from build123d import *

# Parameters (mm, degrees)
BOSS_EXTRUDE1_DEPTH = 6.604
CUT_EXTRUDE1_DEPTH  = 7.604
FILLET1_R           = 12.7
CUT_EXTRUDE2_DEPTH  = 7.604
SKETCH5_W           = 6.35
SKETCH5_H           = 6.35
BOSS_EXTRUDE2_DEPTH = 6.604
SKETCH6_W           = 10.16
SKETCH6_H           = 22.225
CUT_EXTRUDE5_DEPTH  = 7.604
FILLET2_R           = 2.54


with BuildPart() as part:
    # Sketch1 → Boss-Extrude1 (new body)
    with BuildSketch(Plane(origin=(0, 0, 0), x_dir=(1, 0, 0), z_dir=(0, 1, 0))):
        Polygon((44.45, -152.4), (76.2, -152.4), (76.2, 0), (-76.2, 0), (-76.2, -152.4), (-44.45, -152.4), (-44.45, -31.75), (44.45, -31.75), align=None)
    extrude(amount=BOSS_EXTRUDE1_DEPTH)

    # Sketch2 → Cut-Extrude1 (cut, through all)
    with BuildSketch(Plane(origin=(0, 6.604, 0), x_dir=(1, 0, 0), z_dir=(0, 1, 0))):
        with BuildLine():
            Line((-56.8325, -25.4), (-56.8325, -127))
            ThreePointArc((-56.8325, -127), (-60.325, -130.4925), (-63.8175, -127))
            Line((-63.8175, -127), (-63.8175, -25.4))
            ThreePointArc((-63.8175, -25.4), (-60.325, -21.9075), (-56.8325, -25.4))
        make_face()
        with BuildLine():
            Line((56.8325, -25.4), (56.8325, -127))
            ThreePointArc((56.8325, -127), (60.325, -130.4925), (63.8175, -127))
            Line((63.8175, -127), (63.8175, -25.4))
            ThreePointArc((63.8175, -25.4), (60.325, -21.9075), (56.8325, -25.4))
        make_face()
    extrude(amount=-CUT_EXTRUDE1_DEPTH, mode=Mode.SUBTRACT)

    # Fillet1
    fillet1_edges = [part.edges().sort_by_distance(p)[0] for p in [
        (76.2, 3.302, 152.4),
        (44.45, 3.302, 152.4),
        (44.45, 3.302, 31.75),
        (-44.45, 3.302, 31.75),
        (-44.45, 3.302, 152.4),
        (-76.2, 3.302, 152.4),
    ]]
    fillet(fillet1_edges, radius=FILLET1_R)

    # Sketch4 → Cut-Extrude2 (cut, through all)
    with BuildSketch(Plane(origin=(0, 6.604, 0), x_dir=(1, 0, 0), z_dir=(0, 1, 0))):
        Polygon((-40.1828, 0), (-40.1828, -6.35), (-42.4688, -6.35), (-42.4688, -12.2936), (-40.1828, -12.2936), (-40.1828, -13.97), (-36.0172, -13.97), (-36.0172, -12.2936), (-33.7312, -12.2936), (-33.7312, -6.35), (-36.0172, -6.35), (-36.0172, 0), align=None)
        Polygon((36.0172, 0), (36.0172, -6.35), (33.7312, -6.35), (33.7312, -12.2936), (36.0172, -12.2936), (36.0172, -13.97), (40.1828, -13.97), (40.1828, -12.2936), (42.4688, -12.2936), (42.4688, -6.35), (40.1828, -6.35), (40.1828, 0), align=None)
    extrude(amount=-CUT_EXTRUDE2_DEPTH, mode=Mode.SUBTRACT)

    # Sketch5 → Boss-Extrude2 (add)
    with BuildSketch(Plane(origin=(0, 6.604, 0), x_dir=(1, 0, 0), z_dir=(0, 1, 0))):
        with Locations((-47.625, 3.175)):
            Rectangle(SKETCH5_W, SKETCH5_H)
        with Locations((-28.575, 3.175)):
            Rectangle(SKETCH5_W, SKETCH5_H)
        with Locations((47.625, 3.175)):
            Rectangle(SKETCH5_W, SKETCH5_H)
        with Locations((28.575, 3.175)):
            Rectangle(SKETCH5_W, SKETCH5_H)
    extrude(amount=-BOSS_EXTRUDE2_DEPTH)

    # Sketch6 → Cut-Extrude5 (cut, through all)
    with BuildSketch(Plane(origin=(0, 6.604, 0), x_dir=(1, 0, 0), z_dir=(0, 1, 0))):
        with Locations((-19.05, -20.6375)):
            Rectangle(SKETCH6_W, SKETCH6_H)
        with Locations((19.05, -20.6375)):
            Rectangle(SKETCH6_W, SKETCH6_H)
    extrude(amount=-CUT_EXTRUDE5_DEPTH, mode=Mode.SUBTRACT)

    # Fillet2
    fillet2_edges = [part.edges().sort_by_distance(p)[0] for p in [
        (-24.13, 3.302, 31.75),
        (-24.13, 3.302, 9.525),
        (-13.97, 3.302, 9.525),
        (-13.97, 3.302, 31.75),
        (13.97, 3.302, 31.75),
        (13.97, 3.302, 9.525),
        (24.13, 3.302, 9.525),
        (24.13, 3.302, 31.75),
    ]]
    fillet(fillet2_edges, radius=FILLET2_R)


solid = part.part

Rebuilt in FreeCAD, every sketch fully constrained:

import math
import FreeCAD as App
import Part
import Sketcher

V = App.Vector
Q = App.Units.Quantity


def edges_at(feature, points):
    """Names of the edges that pass closest to the given points."""
    edges = feature.Shape.Edges
    near = lambda p: min(range(len(edges)), key=lambda i: edges[i].distToShape(Part.Vertex(*p))[0])
    return sorted({f"Edge{near(p) + 1}" for p in points})

doc = App.newDocument("Part")
body = doc.addObject("PartDesign::Body", "Body")

# Sketch on XZ plane
sketch1 = doc.addObject("Sketcher::SketchObject", "Sketch")
body.addObject(sketch1)
sketch1.AttachmentSupport = (doc.XZ_Plane, [""])
sketch1.MapMode = "FlatFace"
sketch1.addGeometry([
    Part.LineSegment(V(44, 152, 0), V(76, 152, 0)),  # 0
    Part.LineSegment(V(76, 152, 0), V(76, 0, 0)),  # 1
    Part.LineSegment(V(76, 0, 0), V(-76, 0, 0)),  # 2
    Part.LineSegment(V(-76, 0, 0), V(-76, 152, 0)),  # 3
    Part.LineSegment(V(-76, 152, 0), V(-44, 152, 0)),  # 4
    Part.LineSegment(V(-44, 152, 0), V(-44, 32, 0)),  # 5
    Part.LineSegment(V(-44, 32, 0), V(44, 32, 0)),  # 6
    Part.LineSegment(V(44, 32, 0), V(44, 152, 0)),  # 7
], False)
sketch1.addConstraint([
    Sketcher.Constraint("Coincident", 0, 2, 1, 1),
    Sketcher.Constraint("Coincident", 1, 2, 2, 1),
    Sketcher.Constraint("Coincident", 2, 2, 3, 1),
    Sketcher.Constraint("Coincident", 3, 2, 4, 1),
    Sketcher.Constraint("Coincident", 4, 2, 5, 1),
    Sketcher.Constraint("Coincident", 5, 2, 6, 1),
    Sketcher.Constraint("Coincident", 6, 2, 7, 1),
    Sketcher.Constraint("Coincident", 7, 2, 0, 1),
    Sketcher.Constraint("Horizontal", 0),
    Sketcher.Constraint("Vertical", 1),
    Sketcher.Constraint("Horizontal", 2),
    Sketcher.Constraint("Vertical", 3),
    Sketcher.Constraint("Horizontal", 4),
    Sketcher.Constraint("Vertical", 5),
    Sketcher.Constraint("Horizontal", 6),
    Sketcher.Constraint("Vertical", 7),
    Sketcher.Constraint("Symmetric", 1, 2, 2, 2, -1, 1),
    Sketcher.Constraint("Symmetric", 4, 2, 7, 2, -2),
    Sketcher.Constraint("Equal", 2, 1),
    Sketcher.Constraint("DistanceX", 2, 2, 2, 1, Q("6 in")),
    Sketcher.Constraint("DistanceX", 6, 1, 6, 2, Q("3.5 in")),
    Sketcher.Constraint("DistanceY", 5, 2, 5, 1, Q("4.75 in")),
])
pad1 = doc.addObject("PartDesign::Pad", "Pad")
body.addObject(pad1)
pad1.Profile = sketch1
pad1.Length = Q("0.26 in")
pad1.Reversed = True

# Sketch on XZ plane
sketch2 = doc.addObject("Sketcher::SketchObject", "Sketch001")
body.addObject(sketch2)
sketch2.AttachmentSupport = (doc.XZ_Plane, [""])
sketch2.MapMode = "FlatFace"
sketch2.AttachmentOffset = App.Placement(V(0, 0, -0.26 * 25.4), App.Rotation())
sketch2.addGeometry([
    Part.LineSegment(V(-56.8, 127, 0), V(-56.8, 25.4, 0)),  # 0
    Part.ArcOfCircle(Part.Circle(V(-60.3, 25.4, 0), V(0, 0, 1), 3.5), math.radians(180), math.radians(360)),  # 1
    Part.LineSegment(V(-63.8, 25.4, 0), V(-63.8, 127, 0)),  # 2
    Part.ArcOfCircle(Part.Circle(V(-60.3, 127, 0), V(0, 0, 1), 3.5), math.radians(0), math.radians(180)),  # 3
    Part.LineSegment(V(56.8, 25.4, 0), V(56.8, 127, 0)),  # 4
    Part.ArcOfCircle(Part.Circle(V(60.3, 127, 0), V(0, 0, 1), 3.5), math.radians(0), math.radians(180)),  # 5
    Part.LineSegment(V(63.8, 127, 0), V(63.8, 25.4, 0)),  # 6
    Part.ArcOfCircle(Part.Circle(V(60.3, 25.4, 0), V(0, 0, 1), 3.5), math.radians(180), math.radians(360)),  # 7
], False)
sketch2.addConstraint([
    Sketcher.Constraint("Tangent", 0, 2, 1, 2),
    Sketcher.Constraint("Tangent", 1, 1, 2, 1),
    Sketcher.Constraint("Tangent", 2, 2, 3, 2),
    Sketcher.Constraint("Tangent", 3, 1, 0, 1),
    Sketcher.Constraint("Tangent", 4, 2, 5, 2),
    Sketcher.Constraint("Tangent", 5, 1, 6, 1),
    Sketcher.Constraint("Tangent", 6, 2, 7, 2),
    Sketcher.Constraint("Tangent", 7, 1, 4, 1),
    Sketcher.Constraint("Vertical", 0),
    Sketcher.Constraint("Vertical", 2),
    Sketcher.Constraint("Vertical", 4),
    Sketcher.Constraint("Vertical", 6),
    Sketcher.Constraint("Equal", 3, 5),
    Sketcher.Constraint("Symmetric", 3, 3, 5, 3, -2),
    Sketcher.Constraint("Horizontal", 1, 3, 7, 3),
    Sketcher.Constraint("DistanceY", 0, 2, 0, 1, Q("4 in")),
    Sketcher.Constraint("DistanceY", -1, 1, 1, 3, Q("1 in")),
    Sketcher.Constraint("Radius", 1, Q("0.1375 in")),
    Sketcher.Constraint("DistanceX", 3, 3, 5, 3, Q("4.75 in")),
])
pocket1 = doc.addObject("PartDesign::Pocket", "Pocket")
body.addObject(pocket1)
pocket1.Profile = sketch2
pocket1.Type = "ThroughAll"
pocket1.Reversed = True
doc.recompute()

fillet = doc.addObject("PartDesign::Fillet", "Fillet")
body.addObject(fillet)
fillet.Base = (pocket1, edges_at(pocket1, [
    (76.2, 3.302, 152.4),
    (44.45, 3.302, 152.4),
    (44.45, 3.302, 31.75),
    (-44.45, 3.302, 31.75),
    (-44.45, 3.302, 152.4),
    (-76.2, 3.302, 152.4),
]))
fillet.Radius = Q("0.5 in")

# Sketch on XZ plane
sketch3 = doc.addObject("Sketcher::SketchObject", "Sketch002")
body.addObject(sketch3)
sketch3.AttachmentSupport = (doc.XZ_Plane, [""])
sketch3.MapMode = "FlatFace"
sketch3.AttachmentOffset = App.Placement(V(0, 0, -0.26 * 25.4), App.Rotation())
sketch3.addGeometry([
    Part.LineSegment(V(-40.2, 0, 0), V(-40.2, 6.3, 0)),  # 0
    Part.LineSegment(V(-40.2, 6.3, 0), V(-42.5, 6.3, 0)),  # 1
    Part.LineSegment(V(-42.5, 6.3, 0), V(-42.5, 12.3, 0)),  # 2
    Part.LineSegment(V(-42.5, 12.3, 0), V(-40.2, 12.3, 0)),  # 3
    Part.LineSegment(V(-40.2, 12.3, 0), V(-40.2, 14, 0)),  # 4
    Part.LineSegment(V(-40.2, 14, 0), V(-36, 14, 0)),  # 5
    Part.LineSegment(V(-36, 14, 0), V(-36, 12.3, 0)),  # 6
    Part.LineSegment(V(-36, 12.3, 0), V(-33.7, 12.3, 0)),  # 7
    Part.LineSegment(V(-33.7, 12.3, 0), V(-33.7, 6.3, 0)),  # 8
    Part.LineSegment(V(-33.7, 6.3, 0), V(-36, 6.3, 0)),  # 9
    Part.LineSegment(V(-36, 6.3, 0), V(-36, 0, 0)),  # 10
    Part.LineSegment(V(-36, 0, 0), V(-40.2, 0, 0)),  # 11
    Part.LineSegment(V(36, 0, 0), V(36, 6.3, 0)),  # 12
    Part.LineSegment(V(36, 6.3, 0), V(33.7, 6.3, 0)),  # 13
    Part.LineSegment(V(33.7, 6.3, 0), V(33.7, 12.3, 0)),  # 14
    Part.LineSegment(V(33.7, 12.3, 0), V(36, 12.3, 0)),  # 15
    Part.LineSegment(V(36, 12.3, 0), V(36, 14, 0)),  # 16
    Part.LineSegment(V(36, 14, 0), V(40.2, 14, 0)),  # 17
    Part.LineSegment(V(40.2, 14, 0), V(40.2, 12.3, 0)),  # 18
    Part.LineSegment(V(40.2, 12.3, 0), V(42.5, 12.3, 0)),  # 19
    Part.LineSegment(V(42.5, 12.3, 0), V(42.5, 6.3, 0)),  # 20
    Part.LineSegment(V(42.5, 6.3, 0), V(40.2, 6.3, 0)),  # 21
    Part.LineSegment(V(40.2, 6.3, 0), V(40.2, 0, 0)),  # 22
    Part.LineSegment(V(40.2, 0, 0), V(36, 0, 0)),  # 23
], False)
sketch3.addConstraint([
    Sketcher.Constraint("Coincident", 0, 2, 1, 1),
    Sketcher.Constraint("Coincident", 1, 2, 2, 1),
    Sketcher.Constraint("Coincident", 2, 2, 3, 1),
    Sketcher.Constraint("Coincident", 3, 2, 4, 1),
    Sketcher.Constraint("Coincident", 4, 2, 5, 1),
    Sketcher.Constraint("Coincident", 5, 2, 6, 1),
    Sketcher.Constraint("Coincident", 6, 2, 7, 1),
    Sketcher.Constraint("Coincident", 7, 2, 8, 1),
    Sketcher.Constraint("Coincident", 8, 2, 9, 1),
    Sketcher.Constraint("Coincident", 9, 2, 10, 1),
    Sketcher.Constraint("Coincident", 10, 2, 11, 1),
    Sketcher.Constraint("Coincident", 11, 2, 0, 1),
    Sketcher.Constraint("Coincident", 12, 2, 13, 1),
    Sketcher.Constraint("Coincident", 13, 2, 14, 1),
    Sketcher.Constraint("Coincident", 14, 2, 15, 1),
    Sketcher.Constraint("Coincident", 15, 2, 16, 1),
    Sketcher.Constraint("Coincident", 16, 2, 17, 1),
    Sketcher.Constraint("Coincident", 17, 2, 18, 1),
    Sketcher.Constraint("Coincident", 18, 2, 19, 1),
    Sketcher.Constraint("Coincident", 19, 2, 20, 1),
    Sketcher.Constraint("Coincident", 20, 2, 21, 1),
    Sketcher.Constraint("Coincident", 21, 2, 22, 1),
    Sketcher.Constraint("Coincident", 22, 2, 23, 1),
    Sketcher.Constraint("Coincident", 23, 2, 12, 1),
    Sketcher.Constraint("Vertical", 0),
    Sketcher.Constraint("Horizontal", 1),
    Sketcher.Constraint("Vertical", 2),
    Sketcher.Constraint("Horizontal", 3),
    Sketcher.Constraint("Vertical", 4),
    Sketcher.Constraint("Horizontal", 5),
    Sketcher.Constraint("Vertical", 6),
    Sketcher.Constraint("Horizontal", 7),
    Sketcher.Constraint("Vertical", 8),
    Sketcher.Constraint("Horizontal", 9),
    Sketcher.Constraint("Vertical", 10),
    Sketcher.Constraint("Horizontal", 11),
    Sketcher.Constraint("Vertical", 12),
    Sketcher.Constraint("Horizontal", 13),
    Sketcher.Constraint("Vertical", 14),
    Sketcher.Constraint("Horizontal", 15),
    Sketcher.Constraint("Vertical", 16),
    Sketcher.Constraint("Horizontal", 17),
    Sketcher.Constraint("Vertical", 18),
    Sketcher.Constraint("Horizontal", 19),
    Sketcher.Constraint("Vertical", 20),
    Sketcher.Constraint("Horizontal", 21),
    Sketcher.Constraint("Vertical", 22),
    Sketcher.Constraint("Horizontal", 23),
    Sketcher.Constraint("Symmetric", 11, 2, 22, 2, -1, 1),
    Sketcher.Constraint("Symmetric", 9, 2, 12, 2, -2),
    Sketcher.Constraint("Symmetric", 7, 2, 14, 2, -2),
    Sketcher.Constraint("Symmetric", 5, 2, 16, 2, -2),
    Sketcher.Constraint("Symmetric", 3, 2, 18, 2, -2),
    Sketcher.Constraint("Symmetric", 1, 2, 20, 2, -2),
    Sketcher.Constraint("PointOnObject", 10, 2, -1),
    Sketcher.Constraint("Horizontal", 3, 2, 6, 2),
    Sketcher.Constraint("Horizontal", 1, 2, 8, 2),
    Sketcher.Constraint("Vertical", 0, 2, 3, 2),
    Sketcher.Constraint("Vertical", 6, 2, 9, 2),
    Sketcher.Constraint("Equal", 3, 7),
    Sketcher.Constraint("DistanceX", 1, 2, 1, 1, Q("0.09 in")),
    Sketcher.Constraint("DistanceY", 0, 1, 0, 2, Q("0.25 in")),
    Sketcher.Constraint("DistanceY", 0, 2, 4, 2, Q("0.3 in")),
    Sketcher.Constraint("DistanceX", 5, 1, 5, 2, Q("0.164 in")),
    Sketcher.Constraint("DistanceY", 2, 1, 2, 2, Q("0.234 in")),
    Sketcher.Constraint("DistanceX", 0, 2, -1, 1, Q("1.582 in")),
])
pocket2 = doc.addObject("PartDesign::Pocket", "Pocket001")
body.addObject(pocket2)
pocket2.Profile = sketch3
pocket2.Type = "ThroughAll"
pocket2.Reversed = True

# Sketch on XZ plane
sketch4 = doc.addObject("Sketcher::SketchObject", "Sketch003")
body.addObject(sketch4)
sketch4.AttachmentSupport = (doc.XZ_Plane, [""])
sketch4.MapMode = "FlatFace"
sketch4.AttachmentOffset = App.Placement(V(0, 0, -0.26 * 25.4), App.Rotation())
sketch4.addGeometry([
    Part.LineSegment(V(-51, -6, 0), V(-51, 0, 0)),  # 0
    Part.LineSegment(V(-51, 0, 0), V(-44, 0, 0)),  # 1
    Part.LineSegment(V(-44, 0, 0), V(-44, -6, 0)),  # 2
    Part.LineSegment(V(-44, -6, 0), V(-51, -6, 0)),  # 3
    Part.LineSegment(V(-32, -6, 0), V(-32, 0, 0)),  # 4
    Part.LineSegment(V(-32, 0, 0), V(-25, 0, 0)),  # 5
    Part.LineSegment(V(-25, 0, 0), V(-25, -6, 0)),  # 6
    Part.LineSegment(V(-25, -6, 0), V(-32, -6, 0)),  # 7
    Part.LineSegment(V(44, -6, 0), V(44, 0, 0)),  # 8
    Part.LineSegment(V(44, 0, 0), V(51, 0, 0)),  # 9
    Part.LineSegment(V(51, 0, 0), V(51, -6, 0)),  # 10
    Part.LineSegment(V(51, -6, 0), V(44, -6, 0)),  # 11
    Part.LineSegment(V(25, -6, 0), V(25, 0, 0)),  # 12
    Part.LineSegment(V(25, 0, 0), V(32, 0, 0)),  # 13
    Part.LineSegment(V(32, 0, 0), V(32, -6, 0)),  # 14
    Part.LineSegment(V(32, -6, 0), V(25, -6, 0)),  # 15
], False)
sketch4.addConstraint([
    Sketcher.Constraint("Coincident", 0, 2, 1, 1),
    Sketcher.Constraint("Coincident", 1, 2, 2, 1),
    Sketcher.Constraint("Coincident", 2, 2, 3, 1),
    Sketcher.Constraint("Coincident", 3, 2, 0, 1),
    Sketcher.Constraint("Coincident", 4, 2, 5, 1),
    Sketcher.Constraint("Coincident", 5, 2, 6, 1),
    Sketcher.Constraint("Coincident", 6, 2, 7, 1),
    Sketcher.Constraint("Coincident", 7, 2, 4, 1),
    Sketcher.Constraint("Coincident", 8, 2, 9, 1),
    Sketcher.Constraint("Coincident", 9, 2, 10, 1),
    Sketcher.Constraint("Coincident", 10, 2, 11, 1),
    Sketcher.Constraint("Coincident", 11, 2, 8, 1),
    Sketcher.Constraint("Coincident", 12, 2, 13, 1),
    Sketcher.Constraint("Coincident", 13, 2, 14, 1),
    Sketcher.Constraint("Coincident", 14, 2, 15, 1),
    Sketcher.Constraint("Coincident", 15, 2, 12, 1),
    Sketcher.Constraint("Vertical", 0),
    Sketcher.Constraint("Horizontal", 1),
    Sketcher.Constraint("Vertical", 2),
    Sketcher.Constraint("Horizontal", 3),
    Sketcher.Constraint("Vertical", 4),
    Sketcher.Constraint("Horizontal", 5),
    Sketcher.Constraint("Vertical", 6),
    Sketcher.Constraint("Horizontal", 7),
    Sketcher.Constraint("Vertical", 8),
    Sketcher.Constraint("Horizontal", 9),
    Sketcher.Constraint("Vertical", 10),
    Sketcher.Constraint("Horizontal", 11),
    Sketcher.Constraint("Vertical", 12),
    Sketcher.Constraint("Horizontal", 13),
    Sketcher.Constraint("Vertical", 14),
    Sketcher.Constraint("Horizontal", 15),
    Sketcher.Constraint("Symmetric", 1, 2, 8, 2, -1, 1),
    Sketcher.Constraint("Symmetric", 5, 2, 12, 2, -1, 1),
    Sketcher.Constraint("Symmetric", 0, 2, 9, 2, -2),
    Sketcher.Constraint("Symmetric", 4, 2, 13, 2, -2),
    Sketcher.Constraint("Horizontal", 3, 2, 6, 2),
    Sketcher.Constraint("Horizontal", 7, 2, 10, 2),
    Sketcher.Constraint("Horizontal", 11, 2, 14, 2),
    Sketcher.Constraint("Equal", 3, 5),
    Sketcher.Constraint("Equal", 15, 0),
    Sketcher.Constraint("DistanceX", 0, 2, -1, 1, Q("2 in")),
    Sketcher.Constraint("DistanceX", 5, 2, -1, 1, Q("1 in")),
    Sketcher.Constraint("DistanceX", 1, 1, 1, 2, Q("0.25 in")),
])
pad2 = doc.addObject("PartDesign::Pad", "Pad001")
body.addObject(pad2)
pad2.Profile = sketch4
pad2.Length = Q("0.26 in")

# Sketch on XZ plane
sketch5 = doc.addObject("Sketcher::SketchObject", "Sketch004")
body.addObject(sketch5)
sketch5.AttachmentSupport = (doc.XZ_Plane, [""])
sketch5.MapMode = "FlatFace"
sketch5.AttachmentOffset = App.Placement(V(0, 0, -0.26 * 25.4), App.Rotation())
sketch5.addGeometry([
    Part.LineSegment(V(-24, 10, 0), V(-24, 32, 0)),  # 0
    Part.LineSegment(V(-24, 32, 0), V(-14, 32, 0)),  # 1
    Part.LineSegment(V(-14, 32, 0), V(-14, 10, 0)),  # 2
    Part.LineSegment(V(-14, 10, 0), V(-24, 10, 0)),  # 3
    Part.LineSegment(V(14, 10, 0), V(14, 32, 0)),  # 4
    Part.LineSegment(V(14, 32, 0), V(24, 32, 0)),  # 5
    Part.LineSegment(V(24, 32, 0), V(24, 10, 0)),  # 6
    Part.LineSegment(V(24, 10, 0), V(14, 10, 0)),  # 7
], False)
sketch5.addConstraint([
    Sketcher.Constraint("Coincident", 0, 2, 1, 1),
    Sketcher.Constraint("Coincident", 1, 2, 2, 1),
    Sketcher.Constraint("Coincident", 2, 2, 3, 1),
    Sketcher.Constraint("Coincident", 3, 2, 0, 1),
    Sketcher.Constraint("Coincident", 4, 2, 5, 1),
    Sketcher.Constraint("Coincident", 5, 2, 6, 1),
    Sketcher.Constraint("Coincident", 6, 2, 7, 1),
    Sketcher.Constraint("Coincident", 7, 2, 4, 1),
    Sketcher.Constraint("Vertical", 0),
    Sketcher.Constraint("Horizontal", 1),
    Sketcher.Constraint("Vertical", 2),
    Sketcher.Constraint("Horizontal", 3),
    Sketcher.Constraint("Vertical", 4),
    Sketcher.Constraint("Horizontal", 5),
    Sketcher.Constraint("Vertical", 6),
    Sketcher.Constraint("Horizontal", 7),
    Sketcher.Constraint("Symmetric", 1, 2, 4, 2, -2),
    Sketcher.Constraint("Symmetric", 3, 2, 6, 2, -2),
    Sketcher.Constraint("DistanceX", 1, 1, 1, 2, Q("0.4 in")),
    Sketcher.Constraint("DistanceX", 1, 2, 4, 2, Q("1.1 in")),
    Sketcher.Constraint("DistanceY", 0, 1, 0, 2, Q("0.875 in")),
    Sketcher.Constraint("DistanceY", -1, 1, 0, 2, Q("1.25 in")),
])
pocket3 = doc.addObject("PartDesign::Pocket", "Pocket002")
body.addObject(pocket3)
pocket3.Profile = sketch5
pocket3.Type = "ThroughAll"
pocket3.Reversed = True
doc.recompute()

fillet2 = doc.addObject("PartDesign::Fillet", "Fillet001")
body.addObject(fillet2)
fillet2.Base = (pocket3, edges_at(pocket3, [
    (-24.13, 3.302, 31.75),
    (-24.13, 3.302, 9.525),
    (-13.97, 3.302, 9.525),
    (-13.97, 3.302, 31.75),
    (13.97, 3.302, 31.75),
    (13.97, 3.302, 9.525),
    (24.13, 3.302, 9.525),
    (24.13, 3.302, 31.75),
]))
fillet2.Radius = Q("0.1 in")

doc.recompute()
